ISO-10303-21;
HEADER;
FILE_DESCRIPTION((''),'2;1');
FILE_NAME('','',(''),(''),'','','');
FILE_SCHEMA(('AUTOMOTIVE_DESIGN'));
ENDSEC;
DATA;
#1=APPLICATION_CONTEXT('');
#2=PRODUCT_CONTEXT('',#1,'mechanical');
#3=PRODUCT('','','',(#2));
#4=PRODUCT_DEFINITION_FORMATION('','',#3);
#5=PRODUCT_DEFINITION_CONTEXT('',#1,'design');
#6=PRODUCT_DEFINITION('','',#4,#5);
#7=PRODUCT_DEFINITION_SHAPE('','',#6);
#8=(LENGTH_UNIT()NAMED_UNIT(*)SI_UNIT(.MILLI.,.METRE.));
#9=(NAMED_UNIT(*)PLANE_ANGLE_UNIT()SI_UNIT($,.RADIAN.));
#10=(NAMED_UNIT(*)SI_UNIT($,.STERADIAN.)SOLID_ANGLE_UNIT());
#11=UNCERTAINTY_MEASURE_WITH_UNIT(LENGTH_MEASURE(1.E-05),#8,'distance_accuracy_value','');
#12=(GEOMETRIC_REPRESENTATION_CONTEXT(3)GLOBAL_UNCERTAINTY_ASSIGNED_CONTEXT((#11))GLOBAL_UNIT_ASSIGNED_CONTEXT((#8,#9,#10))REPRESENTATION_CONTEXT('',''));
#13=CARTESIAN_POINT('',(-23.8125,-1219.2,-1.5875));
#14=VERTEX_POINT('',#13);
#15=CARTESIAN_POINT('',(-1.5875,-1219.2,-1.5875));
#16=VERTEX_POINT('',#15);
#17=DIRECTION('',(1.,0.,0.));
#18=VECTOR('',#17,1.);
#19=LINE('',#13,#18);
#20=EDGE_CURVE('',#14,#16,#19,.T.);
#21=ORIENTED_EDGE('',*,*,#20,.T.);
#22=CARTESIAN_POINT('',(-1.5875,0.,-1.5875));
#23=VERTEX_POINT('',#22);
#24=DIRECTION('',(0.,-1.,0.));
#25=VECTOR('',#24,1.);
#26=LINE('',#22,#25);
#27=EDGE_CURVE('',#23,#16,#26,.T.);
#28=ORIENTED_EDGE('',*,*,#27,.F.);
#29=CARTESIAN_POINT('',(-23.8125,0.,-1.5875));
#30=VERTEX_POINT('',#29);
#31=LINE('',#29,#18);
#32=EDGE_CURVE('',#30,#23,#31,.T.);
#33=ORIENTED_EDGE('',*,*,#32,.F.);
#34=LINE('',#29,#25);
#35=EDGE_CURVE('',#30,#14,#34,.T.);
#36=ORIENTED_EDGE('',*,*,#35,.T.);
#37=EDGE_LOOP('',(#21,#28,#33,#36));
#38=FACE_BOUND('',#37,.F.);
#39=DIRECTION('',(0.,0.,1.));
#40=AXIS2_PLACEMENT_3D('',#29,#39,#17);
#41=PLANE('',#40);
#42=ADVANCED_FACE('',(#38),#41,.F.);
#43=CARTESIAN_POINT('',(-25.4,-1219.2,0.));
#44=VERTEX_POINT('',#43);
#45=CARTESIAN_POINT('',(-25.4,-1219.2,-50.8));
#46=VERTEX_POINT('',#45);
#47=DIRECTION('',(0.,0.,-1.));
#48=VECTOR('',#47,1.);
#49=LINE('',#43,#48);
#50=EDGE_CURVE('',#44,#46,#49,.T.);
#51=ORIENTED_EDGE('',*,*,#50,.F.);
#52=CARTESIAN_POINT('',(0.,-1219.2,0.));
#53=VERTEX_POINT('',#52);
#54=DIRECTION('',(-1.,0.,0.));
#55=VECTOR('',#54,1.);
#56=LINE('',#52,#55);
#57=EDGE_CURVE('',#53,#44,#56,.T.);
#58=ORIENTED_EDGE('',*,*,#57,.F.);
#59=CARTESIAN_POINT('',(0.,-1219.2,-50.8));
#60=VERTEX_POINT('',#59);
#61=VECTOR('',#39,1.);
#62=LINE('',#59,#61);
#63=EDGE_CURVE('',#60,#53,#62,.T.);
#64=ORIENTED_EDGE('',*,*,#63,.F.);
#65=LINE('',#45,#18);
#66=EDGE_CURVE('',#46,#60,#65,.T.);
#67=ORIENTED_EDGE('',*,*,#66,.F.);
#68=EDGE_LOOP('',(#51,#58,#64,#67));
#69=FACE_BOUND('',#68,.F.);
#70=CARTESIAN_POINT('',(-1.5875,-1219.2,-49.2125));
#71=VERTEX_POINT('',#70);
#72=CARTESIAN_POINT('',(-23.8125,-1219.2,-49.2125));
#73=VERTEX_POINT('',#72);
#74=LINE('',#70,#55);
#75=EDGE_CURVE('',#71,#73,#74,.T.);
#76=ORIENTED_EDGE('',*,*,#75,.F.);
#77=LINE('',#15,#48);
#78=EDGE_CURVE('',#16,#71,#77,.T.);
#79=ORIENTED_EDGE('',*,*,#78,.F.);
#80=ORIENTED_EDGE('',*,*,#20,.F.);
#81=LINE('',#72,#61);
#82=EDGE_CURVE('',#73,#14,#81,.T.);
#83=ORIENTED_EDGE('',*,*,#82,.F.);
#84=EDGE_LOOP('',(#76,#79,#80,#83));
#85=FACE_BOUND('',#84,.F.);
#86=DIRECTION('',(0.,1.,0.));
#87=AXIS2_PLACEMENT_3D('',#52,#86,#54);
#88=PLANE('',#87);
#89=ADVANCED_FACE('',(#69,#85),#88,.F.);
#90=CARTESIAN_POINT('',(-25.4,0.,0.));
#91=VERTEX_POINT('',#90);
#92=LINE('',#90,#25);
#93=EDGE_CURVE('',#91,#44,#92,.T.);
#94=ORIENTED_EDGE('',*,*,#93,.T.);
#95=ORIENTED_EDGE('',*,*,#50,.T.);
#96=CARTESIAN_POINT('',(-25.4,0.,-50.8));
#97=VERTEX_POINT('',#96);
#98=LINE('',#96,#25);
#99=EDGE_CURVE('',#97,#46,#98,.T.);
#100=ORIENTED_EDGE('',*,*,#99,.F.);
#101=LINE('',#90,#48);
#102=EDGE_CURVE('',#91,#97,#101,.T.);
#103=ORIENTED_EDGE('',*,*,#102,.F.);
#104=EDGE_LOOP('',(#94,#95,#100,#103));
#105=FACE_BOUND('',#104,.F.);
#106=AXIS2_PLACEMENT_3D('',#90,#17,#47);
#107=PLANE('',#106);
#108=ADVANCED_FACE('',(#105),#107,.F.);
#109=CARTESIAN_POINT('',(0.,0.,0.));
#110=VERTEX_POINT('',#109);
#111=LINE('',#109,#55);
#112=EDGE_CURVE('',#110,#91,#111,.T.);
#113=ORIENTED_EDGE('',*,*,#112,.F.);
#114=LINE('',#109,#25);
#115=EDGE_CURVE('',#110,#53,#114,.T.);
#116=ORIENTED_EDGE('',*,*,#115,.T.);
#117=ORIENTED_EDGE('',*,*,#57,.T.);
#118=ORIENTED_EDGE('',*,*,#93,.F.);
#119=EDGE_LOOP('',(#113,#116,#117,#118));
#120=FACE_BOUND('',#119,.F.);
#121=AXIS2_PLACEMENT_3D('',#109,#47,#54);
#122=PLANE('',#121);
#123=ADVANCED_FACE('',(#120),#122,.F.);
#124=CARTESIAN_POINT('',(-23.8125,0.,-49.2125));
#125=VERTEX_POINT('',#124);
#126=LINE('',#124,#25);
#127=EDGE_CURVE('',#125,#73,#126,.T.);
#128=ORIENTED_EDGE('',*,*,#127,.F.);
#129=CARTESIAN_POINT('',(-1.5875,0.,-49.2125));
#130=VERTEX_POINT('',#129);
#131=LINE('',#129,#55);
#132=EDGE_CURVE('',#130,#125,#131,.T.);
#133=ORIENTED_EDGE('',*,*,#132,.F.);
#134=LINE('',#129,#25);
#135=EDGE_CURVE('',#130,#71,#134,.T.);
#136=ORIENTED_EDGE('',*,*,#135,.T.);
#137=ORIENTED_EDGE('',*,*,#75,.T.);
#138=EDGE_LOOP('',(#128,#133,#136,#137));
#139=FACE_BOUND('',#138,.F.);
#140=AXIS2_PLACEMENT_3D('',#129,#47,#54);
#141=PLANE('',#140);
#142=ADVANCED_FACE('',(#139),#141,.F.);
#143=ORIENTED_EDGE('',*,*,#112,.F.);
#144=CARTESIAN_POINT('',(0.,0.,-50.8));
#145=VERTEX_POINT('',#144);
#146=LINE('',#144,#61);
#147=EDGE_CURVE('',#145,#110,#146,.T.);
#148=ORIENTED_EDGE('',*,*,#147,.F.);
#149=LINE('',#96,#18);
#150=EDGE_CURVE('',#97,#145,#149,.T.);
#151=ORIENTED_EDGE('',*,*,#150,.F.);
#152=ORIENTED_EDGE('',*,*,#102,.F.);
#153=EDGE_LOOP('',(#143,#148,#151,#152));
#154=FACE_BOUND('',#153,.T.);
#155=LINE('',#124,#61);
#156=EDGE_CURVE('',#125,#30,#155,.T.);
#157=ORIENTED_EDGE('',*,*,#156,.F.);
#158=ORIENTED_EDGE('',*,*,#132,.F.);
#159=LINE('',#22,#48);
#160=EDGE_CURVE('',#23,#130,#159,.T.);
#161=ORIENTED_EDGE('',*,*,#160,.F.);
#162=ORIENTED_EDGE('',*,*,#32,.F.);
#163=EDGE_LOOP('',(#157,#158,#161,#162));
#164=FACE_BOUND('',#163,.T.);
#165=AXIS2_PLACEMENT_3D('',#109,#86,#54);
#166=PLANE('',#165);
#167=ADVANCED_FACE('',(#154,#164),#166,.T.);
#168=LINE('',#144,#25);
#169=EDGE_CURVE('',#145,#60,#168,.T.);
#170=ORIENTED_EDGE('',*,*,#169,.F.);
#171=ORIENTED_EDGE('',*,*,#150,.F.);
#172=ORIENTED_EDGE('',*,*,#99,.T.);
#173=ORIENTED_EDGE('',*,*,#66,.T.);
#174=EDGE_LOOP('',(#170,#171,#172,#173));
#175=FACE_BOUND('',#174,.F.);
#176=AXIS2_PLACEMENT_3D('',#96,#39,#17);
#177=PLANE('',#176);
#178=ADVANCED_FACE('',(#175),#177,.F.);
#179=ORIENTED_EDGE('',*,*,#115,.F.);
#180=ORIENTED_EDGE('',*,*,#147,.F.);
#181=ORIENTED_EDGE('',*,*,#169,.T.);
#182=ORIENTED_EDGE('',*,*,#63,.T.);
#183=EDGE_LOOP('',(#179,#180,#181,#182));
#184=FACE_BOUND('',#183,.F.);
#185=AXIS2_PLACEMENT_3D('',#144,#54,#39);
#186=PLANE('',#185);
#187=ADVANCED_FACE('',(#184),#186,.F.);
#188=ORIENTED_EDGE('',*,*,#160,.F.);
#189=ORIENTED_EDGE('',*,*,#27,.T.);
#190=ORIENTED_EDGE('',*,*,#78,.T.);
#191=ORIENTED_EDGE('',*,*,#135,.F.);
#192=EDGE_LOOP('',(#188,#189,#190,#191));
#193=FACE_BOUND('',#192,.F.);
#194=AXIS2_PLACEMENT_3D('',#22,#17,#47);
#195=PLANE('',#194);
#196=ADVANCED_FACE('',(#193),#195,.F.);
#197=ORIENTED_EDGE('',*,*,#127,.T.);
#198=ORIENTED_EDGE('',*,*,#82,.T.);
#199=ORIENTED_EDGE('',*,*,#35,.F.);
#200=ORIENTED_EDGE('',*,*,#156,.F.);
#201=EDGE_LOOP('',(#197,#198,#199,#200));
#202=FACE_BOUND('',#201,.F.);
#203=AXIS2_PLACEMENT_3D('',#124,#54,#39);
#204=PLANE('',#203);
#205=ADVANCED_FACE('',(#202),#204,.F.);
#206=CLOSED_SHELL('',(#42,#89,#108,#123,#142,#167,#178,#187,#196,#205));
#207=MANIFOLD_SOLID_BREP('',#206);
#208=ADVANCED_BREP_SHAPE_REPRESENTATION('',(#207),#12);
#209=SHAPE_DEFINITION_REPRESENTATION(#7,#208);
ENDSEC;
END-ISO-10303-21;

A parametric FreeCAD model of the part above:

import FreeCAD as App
import Part
import Sketcher
from FreeCAD import Vector
Q = App.Units.Quantity


def add_polygon(sketch, points):
    """Adds a closed chain of lines whose ends are joined by coincident constraints."""
    first, n = sketch.GeometryCount, len(points)
    for a, b in zip(points, points[1:] + points[:1]):
        sketch.addGeometry(Part.LineSegment(App.Vector(*a, 0), App.Vector(*b, 0)), False)
    for i in range(n):
        sketch.addConstraint(Sketcher.Constraint("Coincident", first + i, 2, first + (i + 1) % n, 1))

doc = App.newDocument("Part")
params = doc.addObject("Spreadsheet::Sheet", "Params")
for row, (alias, value) in enumerate([
    ("sketch1_width", "1 in"),
    ("sketch1_height", "2 in"),
    ("pad1_length", "48 in"),
], start=1):
    params.set(f"A{row}", alias)
    params.set(f"B{row}", "=" + value)
    params.setAlias(f"B{row}", alias)

body = doc.addObject("PartDesign::Body", "Body")

# Sketch on XZ plane
sketch1 = body.newObject("Sketcher::SketchObject", "Sketch")
sketch1.AttachmentSupport = (doc.getObject("XZ_Plane"), [""])
sketch1.MapMode = "FlatFace"
add_polygon(sketch1, [(-25, 0), (0, 0), (0, -51), (-25, -51)])  # lines 0-3
add_polygon(sketch1, [(-24, -2), (-24, -49), (-2, -49), (-2, -2)])  # lines 4-7
sketch1.addConstraint([
    Sketcher.Constraint("Horizontal", 0),
    Sketcher.Constraint("Vertical", 1),
    Sketcher.Constraint("Horizontal", 2),
    Sketcher.Constraint("Vertical", 3),
    Sketcher.Constraint("Vertical", 4),
    Sketcher.Constraint("Horizontal", 5),
    Sketcher.Constraint("Vertical", 6),
    Sketcher.Constraint("Horizontal", 7),
    Sketcher.Constraint("Coincident", 0, 2, -1, 1),
    Sketcher.Constraint("DistanceX", 0, 1, 0, 2, Q("1 in")),
    Sketcher.Constraint("DistanceY", 1, 2, 1, 1, Q("2 in")),
    Sketcher.Constraint("DistanceX", 5, 2, -1, 1, Q("0.0625 in")),
    Sketcher.Constraint("DistanceY", 6, 2, -1, 1, Q("0.0625 in")),
    Sketcher.Constraint("DistanceX", 2, 2, 4, 2, Q("0.0625 in")),
    Sketcher.Constraint("DistanceY", 2, 2, 4, 2, Q("0.0625 in")),
])
sketch1.setExpression("Constraints[17]", "Params.sketch1_width")
sketch1.setExpression("Constraints[18]", "Params.sketch1_height")
pad1 = body.newObject("PartDesign::Pad", "Pad")
pad1.Profile = sketch1
pad1.setExpression("Length", "Params.pad1_length")

doc.recompute()
